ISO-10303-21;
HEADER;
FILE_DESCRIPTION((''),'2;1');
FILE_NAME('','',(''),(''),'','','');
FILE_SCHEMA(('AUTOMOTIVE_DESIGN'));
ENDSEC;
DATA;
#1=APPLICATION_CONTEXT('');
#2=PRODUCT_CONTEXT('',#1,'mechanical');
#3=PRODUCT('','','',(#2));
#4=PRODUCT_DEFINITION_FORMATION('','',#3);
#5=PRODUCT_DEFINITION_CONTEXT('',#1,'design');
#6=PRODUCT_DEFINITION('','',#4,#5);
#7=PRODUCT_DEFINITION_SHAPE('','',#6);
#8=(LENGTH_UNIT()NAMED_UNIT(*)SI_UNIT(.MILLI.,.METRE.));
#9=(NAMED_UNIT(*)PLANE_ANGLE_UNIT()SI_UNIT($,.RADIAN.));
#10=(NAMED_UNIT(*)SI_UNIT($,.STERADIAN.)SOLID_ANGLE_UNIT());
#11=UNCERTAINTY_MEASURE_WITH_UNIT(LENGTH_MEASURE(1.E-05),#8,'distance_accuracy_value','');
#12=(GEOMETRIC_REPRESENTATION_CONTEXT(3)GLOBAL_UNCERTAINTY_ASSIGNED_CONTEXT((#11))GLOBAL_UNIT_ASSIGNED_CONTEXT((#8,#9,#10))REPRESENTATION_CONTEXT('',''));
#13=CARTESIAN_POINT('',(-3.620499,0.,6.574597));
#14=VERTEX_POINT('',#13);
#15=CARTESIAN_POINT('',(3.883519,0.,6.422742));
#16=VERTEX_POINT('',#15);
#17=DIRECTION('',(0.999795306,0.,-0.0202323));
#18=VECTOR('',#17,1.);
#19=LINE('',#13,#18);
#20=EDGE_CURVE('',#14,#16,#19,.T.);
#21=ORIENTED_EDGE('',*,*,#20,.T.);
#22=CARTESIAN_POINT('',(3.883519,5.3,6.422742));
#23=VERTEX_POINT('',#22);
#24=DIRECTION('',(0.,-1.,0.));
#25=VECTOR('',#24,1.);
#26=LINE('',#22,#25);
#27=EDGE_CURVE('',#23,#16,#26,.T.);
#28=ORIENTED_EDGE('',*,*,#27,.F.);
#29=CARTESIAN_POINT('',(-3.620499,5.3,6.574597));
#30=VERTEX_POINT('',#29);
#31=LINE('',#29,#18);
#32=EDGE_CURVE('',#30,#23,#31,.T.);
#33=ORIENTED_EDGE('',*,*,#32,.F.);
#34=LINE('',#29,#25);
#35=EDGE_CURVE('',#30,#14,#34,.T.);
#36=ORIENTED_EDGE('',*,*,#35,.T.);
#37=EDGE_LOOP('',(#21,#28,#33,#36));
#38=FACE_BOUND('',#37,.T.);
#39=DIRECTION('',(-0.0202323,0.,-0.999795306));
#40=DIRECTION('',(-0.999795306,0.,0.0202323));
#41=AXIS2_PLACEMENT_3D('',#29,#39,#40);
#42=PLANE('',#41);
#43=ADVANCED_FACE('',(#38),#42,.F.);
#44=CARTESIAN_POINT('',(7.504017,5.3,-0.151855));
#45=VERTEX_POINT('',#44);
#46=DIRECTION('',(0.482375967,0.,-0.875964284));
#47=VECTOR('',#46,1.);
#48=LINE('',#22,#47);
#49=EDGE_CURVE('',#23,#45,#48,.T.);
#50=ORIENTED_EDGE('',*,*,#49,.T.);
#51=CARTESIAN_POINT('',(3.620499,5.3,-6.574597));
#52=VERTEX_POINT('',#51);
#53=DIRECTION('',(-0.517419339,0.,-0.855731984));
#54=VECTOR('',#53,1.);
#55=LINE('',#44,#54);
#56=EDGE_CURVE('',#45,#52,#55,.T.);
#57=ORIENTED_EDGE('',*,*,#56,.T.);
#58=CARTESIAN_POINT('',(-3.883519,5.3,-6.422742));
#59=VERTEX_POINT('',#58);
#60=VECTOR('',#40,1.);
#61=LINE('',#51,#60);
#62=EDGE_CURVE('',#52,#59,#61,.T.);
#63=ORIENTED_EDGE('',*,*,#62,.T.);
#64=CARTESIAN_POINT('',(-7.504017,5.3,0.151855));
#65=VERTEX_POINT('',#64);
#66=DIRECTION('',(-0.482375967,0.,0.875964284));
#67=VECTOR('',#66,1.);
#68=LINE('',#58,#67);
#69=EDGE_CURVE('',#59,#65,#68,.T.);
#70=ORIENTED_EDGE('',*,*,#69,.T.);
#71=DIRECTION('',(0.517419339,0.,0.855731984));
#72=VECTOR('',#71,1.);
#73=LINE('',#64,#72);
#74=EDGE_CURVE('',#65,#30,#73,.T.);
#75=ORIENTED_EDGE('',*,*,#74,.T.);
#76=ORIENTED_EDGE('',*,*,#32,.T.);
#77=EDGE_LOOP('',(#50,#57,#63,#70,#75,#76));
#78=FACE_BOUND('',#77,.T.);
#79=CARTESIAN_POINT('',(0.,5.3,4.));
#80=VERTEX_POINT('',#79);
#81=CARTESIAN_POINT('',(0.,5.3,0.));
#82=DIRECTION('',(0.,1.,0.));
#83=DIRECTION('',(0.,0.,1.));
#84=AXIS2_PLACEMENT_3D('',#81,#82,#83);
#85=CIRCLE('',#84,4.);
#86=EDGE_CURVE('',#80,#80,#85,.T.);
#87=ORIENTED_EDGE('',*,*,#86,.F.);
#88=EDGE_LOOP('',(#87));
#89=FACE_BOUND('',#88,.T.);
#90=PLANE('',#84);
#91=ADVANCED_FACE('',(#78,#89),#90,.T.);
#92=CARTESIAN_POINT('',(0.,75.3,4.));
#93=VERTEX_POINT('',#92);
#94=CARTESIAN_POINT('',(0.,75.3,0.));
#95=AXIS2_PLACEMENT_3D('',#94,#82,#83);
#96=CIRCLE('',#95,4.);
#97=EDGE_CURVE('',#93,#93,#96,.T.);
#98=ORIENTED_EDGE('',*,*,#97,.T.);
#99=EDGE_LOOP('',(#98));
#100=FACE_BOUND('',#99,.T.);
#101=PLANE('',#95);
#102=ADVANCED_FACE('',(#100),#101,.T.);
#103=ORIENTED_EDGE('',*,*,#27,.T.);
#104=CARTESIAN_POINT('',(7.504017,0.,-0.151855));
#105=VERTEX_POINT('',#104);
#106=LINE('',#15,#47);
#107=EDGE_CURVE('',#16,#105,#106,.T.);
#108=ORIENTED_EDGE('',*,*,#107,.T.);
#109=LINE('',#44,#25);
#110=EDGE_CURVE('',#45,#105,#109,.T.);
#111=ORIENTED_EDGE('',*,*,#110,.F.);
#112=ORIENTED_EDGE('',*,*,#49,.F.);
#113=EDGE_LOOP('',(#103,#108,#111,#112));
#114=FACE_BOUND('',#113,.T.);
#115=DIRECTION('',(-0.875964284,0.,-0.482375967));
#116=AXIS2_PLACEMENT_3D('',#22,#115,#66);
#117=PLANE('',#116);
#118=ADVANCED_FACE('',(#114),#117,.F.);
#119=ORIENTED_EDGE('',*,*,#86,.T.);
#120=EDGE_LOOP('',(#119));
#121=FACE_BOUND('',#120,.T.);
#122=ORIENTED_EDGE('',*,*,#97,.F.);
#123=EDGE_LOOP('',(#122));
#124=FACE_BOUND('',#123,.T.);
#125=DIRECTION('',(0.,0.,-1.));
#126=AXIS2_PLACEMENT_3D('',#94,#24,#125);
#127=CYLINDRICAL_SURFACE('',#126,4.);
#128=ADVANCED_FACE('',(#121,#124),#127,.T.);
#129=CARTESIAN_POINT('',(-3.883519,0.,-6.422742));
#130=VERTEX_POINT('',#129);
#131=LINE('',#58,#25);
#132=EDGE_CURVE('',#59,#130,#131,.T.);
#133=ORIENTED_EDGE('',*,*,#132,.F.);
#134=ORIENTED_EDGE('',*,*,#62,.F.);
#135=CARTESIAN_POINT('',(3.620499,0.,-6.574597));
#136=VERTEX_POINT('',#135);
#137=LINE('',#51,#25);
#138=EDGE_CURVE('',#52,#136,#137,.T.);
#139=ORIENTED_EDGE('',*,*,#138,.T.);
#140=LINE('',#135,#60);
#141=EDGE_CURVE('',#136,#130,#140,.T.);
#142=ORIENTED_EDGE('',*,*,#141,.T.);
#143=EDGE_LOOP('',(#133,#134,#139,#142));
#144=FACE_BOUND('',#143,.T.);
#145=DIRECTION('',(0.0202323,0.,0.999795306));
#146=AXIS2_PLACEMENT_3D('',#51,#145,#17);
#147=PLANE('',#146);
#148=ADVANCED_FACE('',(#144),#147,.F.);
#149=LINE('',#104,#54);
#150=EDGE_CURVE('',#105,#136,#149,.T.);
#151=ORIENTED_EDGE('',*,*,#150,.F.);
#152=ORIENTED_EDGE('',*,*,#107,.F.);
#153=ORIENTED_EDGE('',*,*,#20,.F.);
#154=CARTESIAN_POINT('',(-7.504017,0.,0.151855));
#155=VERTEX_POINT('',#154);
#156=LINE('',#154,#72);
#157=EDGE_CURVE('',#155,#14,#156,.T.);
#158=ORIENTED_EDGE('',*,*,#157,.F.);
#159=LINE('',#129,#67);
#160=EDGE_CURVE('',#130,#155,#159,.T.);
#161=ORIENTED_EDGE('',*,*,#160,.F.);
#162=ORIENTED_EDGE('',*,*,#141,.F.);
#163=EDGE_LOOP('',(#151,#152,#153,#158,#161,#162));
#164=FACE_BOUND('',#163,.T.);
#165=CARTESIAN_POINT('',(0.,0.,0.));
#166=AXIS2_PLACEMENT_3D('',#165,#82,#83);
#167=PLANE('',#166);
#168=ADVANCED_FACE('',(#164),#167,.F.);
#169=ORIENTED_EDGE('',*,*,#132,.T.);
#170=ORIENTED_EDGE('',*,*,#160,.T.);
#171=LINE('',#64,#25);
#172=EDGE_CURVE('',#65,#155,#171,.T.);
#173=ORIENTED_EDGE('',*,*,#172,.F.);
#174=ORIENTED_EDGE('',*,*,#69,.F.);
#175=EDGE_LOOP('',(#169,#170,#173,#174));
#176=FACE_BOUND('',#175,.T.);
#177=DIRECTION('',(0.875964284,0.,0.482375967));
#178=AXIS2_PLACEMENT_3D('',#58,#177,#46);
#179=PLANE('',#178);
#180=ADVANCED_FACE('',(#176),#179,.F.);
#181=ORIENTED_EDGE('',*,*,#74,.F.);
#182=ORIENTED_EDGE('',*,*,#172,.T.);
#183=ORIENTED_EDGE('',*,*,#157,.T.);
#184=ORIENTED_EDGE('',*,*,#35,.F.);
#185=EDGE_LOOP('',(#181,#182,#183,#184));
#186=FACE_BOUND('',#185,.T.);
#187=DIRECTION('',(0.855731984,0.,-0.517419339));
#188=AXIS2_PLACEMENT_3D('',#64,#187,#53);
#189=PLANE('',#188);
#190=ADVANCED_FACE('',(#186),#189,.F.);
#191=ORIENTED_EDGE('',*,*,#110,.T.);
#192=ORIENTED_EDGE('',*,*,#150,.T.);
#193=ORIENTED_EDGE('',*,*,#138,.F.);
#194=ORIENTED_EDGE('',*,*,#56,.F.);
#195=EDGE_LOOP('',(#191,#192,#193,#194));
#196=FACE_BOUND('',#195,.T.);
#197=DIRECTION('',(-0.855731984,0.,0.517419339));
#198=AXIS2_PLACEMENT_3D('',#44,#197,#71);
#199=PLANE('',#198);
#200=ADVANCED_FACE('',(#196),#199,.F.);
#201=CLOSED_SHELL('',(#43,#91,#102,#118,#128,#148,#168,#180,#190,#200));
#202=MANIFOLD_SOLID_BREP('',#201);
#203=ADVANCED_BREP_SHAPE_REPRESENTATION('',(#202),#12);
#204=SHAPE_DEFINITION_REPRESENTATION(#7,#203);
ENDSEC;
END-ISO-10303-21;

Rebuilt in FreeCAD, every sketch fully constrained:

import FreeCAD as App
import Part
import Sketcher

V = App.Vector

doc = App.newDocument("Part")
params = doc.addObject("Spreadsheet::Sheet", "Params")
for row, (alias, value) in enumerate([
    ("pad1_length", "5.3 mm"),
    ("sketch2_diameter", "8 mm"),
    ("pad2_length", "70 mm"),
], start=1):
    params.set(f"A{row}", alias)
    params.set(f"B{row}", "=" + value)
    params.setAlias(f"B{row}", alias)

body = doc.addObject("PartDesign::Body", "Body")

sketch1 = body.newObject("Sketcher::SketchObject", "Sketch")
sketch1.AttachmentSupport = (doc.getObject("XZ_Plane"), [""])
sketch1.MapMode = "FlatFace"
sketch1.addGeometry(Part.LineSegment(V(4, 6, 0), V(8, 0, 0)), False)
sketch1.addGeometry(Part.LineSegment(V(8, 0, 0), V(4, -7, 0)), False)
sketch1.addGeometry(Part.LineSegment(V(4, -7, 0), V(-4, -6, 0)), False)
sketch1.addGeometry(Part.LineSegment(V(-4, -6, 0), V(-8, 0, 0)), False)
sketch1.addGeometry(Part.LineSegment(V(-8, 0, 0), V(-4, 7, 0)), False)
sketch1.addGeometry(Part.LineSegment(V(-4, 7, 0), V(4, 6, 0)), False)
sketch1.addConstraint(Sketcher.Constraint("Coincident", 0, 2, 1, 1))
sketch1.addConstraint(Sketcher.Constraint("Coincident", 1, 2, 2, 1))
sketch1.addConstraint(Sketcher.Constraint("Coincident", 2, 2, 3, 1))
sketch1.addConstraint(Sketcher.Constraint("Coincident", 3, 2, 4, 1))
sketch1.addConstraint(Sketcher.Constraint("Coincident", 4, 2, 5, 1))
sketch1.addConstraint(Sketcher.Constraint("Coincident", 5, 2, 0, 1))
sketch1.addConstraint(Sketcher.Constraint("Symmetric", 0, 2, 3, 2, -1, 1))
sketch1.addConstraint(Sketcher.Constraint("Symmetric", 1, 2, 4, 2, -1, 1))
sketch1.addConstraint(Sketcher.Constraint("Symmetric", 2, 2, 5, 2, -1, 1))
sketch1.addConstraint(Sketcher.Constraint("Equal", 0, 1))
sketch1.addConstraint(Sketcher.Constraint("Equal", 1, 2))
sketch1.addConstraint(Sketcher.Constraint("DistanceX", -1, 1, 1, 2, 3.620499))
sketch1.addConstraint(Sketcher.Constraint("DistanceX", 3, 2, 2, 2, 3.620499))
sketch1.addConstraint(Sketcher.Constraint("DistanceX", 2, 2, -1, 1, 3.883519))
sketch1.addConstraint(Sketcher.Constraint("DistanceY", 1, 2, 3, 2, 6.726451))
pad1 = body.newObject("PartDesign::Pad", "Pad")
pad1.Profile = sketch1
pad1.setExpression("Length", "Params.pad1_length")
pad1.Reversed = True

sketch2 = body.newObject("Sketcher::SketchObject", "Sketch001")
sketch2.AttachmentSupport = (doc.getObject("XZ_Plane"), [""])
sketch2.MapMode = "FlatFace"
sketch2.AttachmentOffset = App.Placement(V(0, 0, -5.3), App.Rotation())
sketch2.addGeometry(Part.Circle(V(0, 0, 0), V(0, 0, 1), 4), False)
sketch2.addConstraint(Sketcher.Constraint("Coincident", 0, 3, -1, 1))
sketch2.addConstraint(Sketcher.Constraint("Diameter", 0, 8.0))
sketch2.setExpression("Constraints[1]", "Params.sketch2_diameter")
pad2 = body.newObject("PartDesign::Pad", "Pad001")
pad2.Profile = sketch2
pad2.setExpression("Length", "Params.pad2_length")
pad2.Reversed = True

doc.recompute()
